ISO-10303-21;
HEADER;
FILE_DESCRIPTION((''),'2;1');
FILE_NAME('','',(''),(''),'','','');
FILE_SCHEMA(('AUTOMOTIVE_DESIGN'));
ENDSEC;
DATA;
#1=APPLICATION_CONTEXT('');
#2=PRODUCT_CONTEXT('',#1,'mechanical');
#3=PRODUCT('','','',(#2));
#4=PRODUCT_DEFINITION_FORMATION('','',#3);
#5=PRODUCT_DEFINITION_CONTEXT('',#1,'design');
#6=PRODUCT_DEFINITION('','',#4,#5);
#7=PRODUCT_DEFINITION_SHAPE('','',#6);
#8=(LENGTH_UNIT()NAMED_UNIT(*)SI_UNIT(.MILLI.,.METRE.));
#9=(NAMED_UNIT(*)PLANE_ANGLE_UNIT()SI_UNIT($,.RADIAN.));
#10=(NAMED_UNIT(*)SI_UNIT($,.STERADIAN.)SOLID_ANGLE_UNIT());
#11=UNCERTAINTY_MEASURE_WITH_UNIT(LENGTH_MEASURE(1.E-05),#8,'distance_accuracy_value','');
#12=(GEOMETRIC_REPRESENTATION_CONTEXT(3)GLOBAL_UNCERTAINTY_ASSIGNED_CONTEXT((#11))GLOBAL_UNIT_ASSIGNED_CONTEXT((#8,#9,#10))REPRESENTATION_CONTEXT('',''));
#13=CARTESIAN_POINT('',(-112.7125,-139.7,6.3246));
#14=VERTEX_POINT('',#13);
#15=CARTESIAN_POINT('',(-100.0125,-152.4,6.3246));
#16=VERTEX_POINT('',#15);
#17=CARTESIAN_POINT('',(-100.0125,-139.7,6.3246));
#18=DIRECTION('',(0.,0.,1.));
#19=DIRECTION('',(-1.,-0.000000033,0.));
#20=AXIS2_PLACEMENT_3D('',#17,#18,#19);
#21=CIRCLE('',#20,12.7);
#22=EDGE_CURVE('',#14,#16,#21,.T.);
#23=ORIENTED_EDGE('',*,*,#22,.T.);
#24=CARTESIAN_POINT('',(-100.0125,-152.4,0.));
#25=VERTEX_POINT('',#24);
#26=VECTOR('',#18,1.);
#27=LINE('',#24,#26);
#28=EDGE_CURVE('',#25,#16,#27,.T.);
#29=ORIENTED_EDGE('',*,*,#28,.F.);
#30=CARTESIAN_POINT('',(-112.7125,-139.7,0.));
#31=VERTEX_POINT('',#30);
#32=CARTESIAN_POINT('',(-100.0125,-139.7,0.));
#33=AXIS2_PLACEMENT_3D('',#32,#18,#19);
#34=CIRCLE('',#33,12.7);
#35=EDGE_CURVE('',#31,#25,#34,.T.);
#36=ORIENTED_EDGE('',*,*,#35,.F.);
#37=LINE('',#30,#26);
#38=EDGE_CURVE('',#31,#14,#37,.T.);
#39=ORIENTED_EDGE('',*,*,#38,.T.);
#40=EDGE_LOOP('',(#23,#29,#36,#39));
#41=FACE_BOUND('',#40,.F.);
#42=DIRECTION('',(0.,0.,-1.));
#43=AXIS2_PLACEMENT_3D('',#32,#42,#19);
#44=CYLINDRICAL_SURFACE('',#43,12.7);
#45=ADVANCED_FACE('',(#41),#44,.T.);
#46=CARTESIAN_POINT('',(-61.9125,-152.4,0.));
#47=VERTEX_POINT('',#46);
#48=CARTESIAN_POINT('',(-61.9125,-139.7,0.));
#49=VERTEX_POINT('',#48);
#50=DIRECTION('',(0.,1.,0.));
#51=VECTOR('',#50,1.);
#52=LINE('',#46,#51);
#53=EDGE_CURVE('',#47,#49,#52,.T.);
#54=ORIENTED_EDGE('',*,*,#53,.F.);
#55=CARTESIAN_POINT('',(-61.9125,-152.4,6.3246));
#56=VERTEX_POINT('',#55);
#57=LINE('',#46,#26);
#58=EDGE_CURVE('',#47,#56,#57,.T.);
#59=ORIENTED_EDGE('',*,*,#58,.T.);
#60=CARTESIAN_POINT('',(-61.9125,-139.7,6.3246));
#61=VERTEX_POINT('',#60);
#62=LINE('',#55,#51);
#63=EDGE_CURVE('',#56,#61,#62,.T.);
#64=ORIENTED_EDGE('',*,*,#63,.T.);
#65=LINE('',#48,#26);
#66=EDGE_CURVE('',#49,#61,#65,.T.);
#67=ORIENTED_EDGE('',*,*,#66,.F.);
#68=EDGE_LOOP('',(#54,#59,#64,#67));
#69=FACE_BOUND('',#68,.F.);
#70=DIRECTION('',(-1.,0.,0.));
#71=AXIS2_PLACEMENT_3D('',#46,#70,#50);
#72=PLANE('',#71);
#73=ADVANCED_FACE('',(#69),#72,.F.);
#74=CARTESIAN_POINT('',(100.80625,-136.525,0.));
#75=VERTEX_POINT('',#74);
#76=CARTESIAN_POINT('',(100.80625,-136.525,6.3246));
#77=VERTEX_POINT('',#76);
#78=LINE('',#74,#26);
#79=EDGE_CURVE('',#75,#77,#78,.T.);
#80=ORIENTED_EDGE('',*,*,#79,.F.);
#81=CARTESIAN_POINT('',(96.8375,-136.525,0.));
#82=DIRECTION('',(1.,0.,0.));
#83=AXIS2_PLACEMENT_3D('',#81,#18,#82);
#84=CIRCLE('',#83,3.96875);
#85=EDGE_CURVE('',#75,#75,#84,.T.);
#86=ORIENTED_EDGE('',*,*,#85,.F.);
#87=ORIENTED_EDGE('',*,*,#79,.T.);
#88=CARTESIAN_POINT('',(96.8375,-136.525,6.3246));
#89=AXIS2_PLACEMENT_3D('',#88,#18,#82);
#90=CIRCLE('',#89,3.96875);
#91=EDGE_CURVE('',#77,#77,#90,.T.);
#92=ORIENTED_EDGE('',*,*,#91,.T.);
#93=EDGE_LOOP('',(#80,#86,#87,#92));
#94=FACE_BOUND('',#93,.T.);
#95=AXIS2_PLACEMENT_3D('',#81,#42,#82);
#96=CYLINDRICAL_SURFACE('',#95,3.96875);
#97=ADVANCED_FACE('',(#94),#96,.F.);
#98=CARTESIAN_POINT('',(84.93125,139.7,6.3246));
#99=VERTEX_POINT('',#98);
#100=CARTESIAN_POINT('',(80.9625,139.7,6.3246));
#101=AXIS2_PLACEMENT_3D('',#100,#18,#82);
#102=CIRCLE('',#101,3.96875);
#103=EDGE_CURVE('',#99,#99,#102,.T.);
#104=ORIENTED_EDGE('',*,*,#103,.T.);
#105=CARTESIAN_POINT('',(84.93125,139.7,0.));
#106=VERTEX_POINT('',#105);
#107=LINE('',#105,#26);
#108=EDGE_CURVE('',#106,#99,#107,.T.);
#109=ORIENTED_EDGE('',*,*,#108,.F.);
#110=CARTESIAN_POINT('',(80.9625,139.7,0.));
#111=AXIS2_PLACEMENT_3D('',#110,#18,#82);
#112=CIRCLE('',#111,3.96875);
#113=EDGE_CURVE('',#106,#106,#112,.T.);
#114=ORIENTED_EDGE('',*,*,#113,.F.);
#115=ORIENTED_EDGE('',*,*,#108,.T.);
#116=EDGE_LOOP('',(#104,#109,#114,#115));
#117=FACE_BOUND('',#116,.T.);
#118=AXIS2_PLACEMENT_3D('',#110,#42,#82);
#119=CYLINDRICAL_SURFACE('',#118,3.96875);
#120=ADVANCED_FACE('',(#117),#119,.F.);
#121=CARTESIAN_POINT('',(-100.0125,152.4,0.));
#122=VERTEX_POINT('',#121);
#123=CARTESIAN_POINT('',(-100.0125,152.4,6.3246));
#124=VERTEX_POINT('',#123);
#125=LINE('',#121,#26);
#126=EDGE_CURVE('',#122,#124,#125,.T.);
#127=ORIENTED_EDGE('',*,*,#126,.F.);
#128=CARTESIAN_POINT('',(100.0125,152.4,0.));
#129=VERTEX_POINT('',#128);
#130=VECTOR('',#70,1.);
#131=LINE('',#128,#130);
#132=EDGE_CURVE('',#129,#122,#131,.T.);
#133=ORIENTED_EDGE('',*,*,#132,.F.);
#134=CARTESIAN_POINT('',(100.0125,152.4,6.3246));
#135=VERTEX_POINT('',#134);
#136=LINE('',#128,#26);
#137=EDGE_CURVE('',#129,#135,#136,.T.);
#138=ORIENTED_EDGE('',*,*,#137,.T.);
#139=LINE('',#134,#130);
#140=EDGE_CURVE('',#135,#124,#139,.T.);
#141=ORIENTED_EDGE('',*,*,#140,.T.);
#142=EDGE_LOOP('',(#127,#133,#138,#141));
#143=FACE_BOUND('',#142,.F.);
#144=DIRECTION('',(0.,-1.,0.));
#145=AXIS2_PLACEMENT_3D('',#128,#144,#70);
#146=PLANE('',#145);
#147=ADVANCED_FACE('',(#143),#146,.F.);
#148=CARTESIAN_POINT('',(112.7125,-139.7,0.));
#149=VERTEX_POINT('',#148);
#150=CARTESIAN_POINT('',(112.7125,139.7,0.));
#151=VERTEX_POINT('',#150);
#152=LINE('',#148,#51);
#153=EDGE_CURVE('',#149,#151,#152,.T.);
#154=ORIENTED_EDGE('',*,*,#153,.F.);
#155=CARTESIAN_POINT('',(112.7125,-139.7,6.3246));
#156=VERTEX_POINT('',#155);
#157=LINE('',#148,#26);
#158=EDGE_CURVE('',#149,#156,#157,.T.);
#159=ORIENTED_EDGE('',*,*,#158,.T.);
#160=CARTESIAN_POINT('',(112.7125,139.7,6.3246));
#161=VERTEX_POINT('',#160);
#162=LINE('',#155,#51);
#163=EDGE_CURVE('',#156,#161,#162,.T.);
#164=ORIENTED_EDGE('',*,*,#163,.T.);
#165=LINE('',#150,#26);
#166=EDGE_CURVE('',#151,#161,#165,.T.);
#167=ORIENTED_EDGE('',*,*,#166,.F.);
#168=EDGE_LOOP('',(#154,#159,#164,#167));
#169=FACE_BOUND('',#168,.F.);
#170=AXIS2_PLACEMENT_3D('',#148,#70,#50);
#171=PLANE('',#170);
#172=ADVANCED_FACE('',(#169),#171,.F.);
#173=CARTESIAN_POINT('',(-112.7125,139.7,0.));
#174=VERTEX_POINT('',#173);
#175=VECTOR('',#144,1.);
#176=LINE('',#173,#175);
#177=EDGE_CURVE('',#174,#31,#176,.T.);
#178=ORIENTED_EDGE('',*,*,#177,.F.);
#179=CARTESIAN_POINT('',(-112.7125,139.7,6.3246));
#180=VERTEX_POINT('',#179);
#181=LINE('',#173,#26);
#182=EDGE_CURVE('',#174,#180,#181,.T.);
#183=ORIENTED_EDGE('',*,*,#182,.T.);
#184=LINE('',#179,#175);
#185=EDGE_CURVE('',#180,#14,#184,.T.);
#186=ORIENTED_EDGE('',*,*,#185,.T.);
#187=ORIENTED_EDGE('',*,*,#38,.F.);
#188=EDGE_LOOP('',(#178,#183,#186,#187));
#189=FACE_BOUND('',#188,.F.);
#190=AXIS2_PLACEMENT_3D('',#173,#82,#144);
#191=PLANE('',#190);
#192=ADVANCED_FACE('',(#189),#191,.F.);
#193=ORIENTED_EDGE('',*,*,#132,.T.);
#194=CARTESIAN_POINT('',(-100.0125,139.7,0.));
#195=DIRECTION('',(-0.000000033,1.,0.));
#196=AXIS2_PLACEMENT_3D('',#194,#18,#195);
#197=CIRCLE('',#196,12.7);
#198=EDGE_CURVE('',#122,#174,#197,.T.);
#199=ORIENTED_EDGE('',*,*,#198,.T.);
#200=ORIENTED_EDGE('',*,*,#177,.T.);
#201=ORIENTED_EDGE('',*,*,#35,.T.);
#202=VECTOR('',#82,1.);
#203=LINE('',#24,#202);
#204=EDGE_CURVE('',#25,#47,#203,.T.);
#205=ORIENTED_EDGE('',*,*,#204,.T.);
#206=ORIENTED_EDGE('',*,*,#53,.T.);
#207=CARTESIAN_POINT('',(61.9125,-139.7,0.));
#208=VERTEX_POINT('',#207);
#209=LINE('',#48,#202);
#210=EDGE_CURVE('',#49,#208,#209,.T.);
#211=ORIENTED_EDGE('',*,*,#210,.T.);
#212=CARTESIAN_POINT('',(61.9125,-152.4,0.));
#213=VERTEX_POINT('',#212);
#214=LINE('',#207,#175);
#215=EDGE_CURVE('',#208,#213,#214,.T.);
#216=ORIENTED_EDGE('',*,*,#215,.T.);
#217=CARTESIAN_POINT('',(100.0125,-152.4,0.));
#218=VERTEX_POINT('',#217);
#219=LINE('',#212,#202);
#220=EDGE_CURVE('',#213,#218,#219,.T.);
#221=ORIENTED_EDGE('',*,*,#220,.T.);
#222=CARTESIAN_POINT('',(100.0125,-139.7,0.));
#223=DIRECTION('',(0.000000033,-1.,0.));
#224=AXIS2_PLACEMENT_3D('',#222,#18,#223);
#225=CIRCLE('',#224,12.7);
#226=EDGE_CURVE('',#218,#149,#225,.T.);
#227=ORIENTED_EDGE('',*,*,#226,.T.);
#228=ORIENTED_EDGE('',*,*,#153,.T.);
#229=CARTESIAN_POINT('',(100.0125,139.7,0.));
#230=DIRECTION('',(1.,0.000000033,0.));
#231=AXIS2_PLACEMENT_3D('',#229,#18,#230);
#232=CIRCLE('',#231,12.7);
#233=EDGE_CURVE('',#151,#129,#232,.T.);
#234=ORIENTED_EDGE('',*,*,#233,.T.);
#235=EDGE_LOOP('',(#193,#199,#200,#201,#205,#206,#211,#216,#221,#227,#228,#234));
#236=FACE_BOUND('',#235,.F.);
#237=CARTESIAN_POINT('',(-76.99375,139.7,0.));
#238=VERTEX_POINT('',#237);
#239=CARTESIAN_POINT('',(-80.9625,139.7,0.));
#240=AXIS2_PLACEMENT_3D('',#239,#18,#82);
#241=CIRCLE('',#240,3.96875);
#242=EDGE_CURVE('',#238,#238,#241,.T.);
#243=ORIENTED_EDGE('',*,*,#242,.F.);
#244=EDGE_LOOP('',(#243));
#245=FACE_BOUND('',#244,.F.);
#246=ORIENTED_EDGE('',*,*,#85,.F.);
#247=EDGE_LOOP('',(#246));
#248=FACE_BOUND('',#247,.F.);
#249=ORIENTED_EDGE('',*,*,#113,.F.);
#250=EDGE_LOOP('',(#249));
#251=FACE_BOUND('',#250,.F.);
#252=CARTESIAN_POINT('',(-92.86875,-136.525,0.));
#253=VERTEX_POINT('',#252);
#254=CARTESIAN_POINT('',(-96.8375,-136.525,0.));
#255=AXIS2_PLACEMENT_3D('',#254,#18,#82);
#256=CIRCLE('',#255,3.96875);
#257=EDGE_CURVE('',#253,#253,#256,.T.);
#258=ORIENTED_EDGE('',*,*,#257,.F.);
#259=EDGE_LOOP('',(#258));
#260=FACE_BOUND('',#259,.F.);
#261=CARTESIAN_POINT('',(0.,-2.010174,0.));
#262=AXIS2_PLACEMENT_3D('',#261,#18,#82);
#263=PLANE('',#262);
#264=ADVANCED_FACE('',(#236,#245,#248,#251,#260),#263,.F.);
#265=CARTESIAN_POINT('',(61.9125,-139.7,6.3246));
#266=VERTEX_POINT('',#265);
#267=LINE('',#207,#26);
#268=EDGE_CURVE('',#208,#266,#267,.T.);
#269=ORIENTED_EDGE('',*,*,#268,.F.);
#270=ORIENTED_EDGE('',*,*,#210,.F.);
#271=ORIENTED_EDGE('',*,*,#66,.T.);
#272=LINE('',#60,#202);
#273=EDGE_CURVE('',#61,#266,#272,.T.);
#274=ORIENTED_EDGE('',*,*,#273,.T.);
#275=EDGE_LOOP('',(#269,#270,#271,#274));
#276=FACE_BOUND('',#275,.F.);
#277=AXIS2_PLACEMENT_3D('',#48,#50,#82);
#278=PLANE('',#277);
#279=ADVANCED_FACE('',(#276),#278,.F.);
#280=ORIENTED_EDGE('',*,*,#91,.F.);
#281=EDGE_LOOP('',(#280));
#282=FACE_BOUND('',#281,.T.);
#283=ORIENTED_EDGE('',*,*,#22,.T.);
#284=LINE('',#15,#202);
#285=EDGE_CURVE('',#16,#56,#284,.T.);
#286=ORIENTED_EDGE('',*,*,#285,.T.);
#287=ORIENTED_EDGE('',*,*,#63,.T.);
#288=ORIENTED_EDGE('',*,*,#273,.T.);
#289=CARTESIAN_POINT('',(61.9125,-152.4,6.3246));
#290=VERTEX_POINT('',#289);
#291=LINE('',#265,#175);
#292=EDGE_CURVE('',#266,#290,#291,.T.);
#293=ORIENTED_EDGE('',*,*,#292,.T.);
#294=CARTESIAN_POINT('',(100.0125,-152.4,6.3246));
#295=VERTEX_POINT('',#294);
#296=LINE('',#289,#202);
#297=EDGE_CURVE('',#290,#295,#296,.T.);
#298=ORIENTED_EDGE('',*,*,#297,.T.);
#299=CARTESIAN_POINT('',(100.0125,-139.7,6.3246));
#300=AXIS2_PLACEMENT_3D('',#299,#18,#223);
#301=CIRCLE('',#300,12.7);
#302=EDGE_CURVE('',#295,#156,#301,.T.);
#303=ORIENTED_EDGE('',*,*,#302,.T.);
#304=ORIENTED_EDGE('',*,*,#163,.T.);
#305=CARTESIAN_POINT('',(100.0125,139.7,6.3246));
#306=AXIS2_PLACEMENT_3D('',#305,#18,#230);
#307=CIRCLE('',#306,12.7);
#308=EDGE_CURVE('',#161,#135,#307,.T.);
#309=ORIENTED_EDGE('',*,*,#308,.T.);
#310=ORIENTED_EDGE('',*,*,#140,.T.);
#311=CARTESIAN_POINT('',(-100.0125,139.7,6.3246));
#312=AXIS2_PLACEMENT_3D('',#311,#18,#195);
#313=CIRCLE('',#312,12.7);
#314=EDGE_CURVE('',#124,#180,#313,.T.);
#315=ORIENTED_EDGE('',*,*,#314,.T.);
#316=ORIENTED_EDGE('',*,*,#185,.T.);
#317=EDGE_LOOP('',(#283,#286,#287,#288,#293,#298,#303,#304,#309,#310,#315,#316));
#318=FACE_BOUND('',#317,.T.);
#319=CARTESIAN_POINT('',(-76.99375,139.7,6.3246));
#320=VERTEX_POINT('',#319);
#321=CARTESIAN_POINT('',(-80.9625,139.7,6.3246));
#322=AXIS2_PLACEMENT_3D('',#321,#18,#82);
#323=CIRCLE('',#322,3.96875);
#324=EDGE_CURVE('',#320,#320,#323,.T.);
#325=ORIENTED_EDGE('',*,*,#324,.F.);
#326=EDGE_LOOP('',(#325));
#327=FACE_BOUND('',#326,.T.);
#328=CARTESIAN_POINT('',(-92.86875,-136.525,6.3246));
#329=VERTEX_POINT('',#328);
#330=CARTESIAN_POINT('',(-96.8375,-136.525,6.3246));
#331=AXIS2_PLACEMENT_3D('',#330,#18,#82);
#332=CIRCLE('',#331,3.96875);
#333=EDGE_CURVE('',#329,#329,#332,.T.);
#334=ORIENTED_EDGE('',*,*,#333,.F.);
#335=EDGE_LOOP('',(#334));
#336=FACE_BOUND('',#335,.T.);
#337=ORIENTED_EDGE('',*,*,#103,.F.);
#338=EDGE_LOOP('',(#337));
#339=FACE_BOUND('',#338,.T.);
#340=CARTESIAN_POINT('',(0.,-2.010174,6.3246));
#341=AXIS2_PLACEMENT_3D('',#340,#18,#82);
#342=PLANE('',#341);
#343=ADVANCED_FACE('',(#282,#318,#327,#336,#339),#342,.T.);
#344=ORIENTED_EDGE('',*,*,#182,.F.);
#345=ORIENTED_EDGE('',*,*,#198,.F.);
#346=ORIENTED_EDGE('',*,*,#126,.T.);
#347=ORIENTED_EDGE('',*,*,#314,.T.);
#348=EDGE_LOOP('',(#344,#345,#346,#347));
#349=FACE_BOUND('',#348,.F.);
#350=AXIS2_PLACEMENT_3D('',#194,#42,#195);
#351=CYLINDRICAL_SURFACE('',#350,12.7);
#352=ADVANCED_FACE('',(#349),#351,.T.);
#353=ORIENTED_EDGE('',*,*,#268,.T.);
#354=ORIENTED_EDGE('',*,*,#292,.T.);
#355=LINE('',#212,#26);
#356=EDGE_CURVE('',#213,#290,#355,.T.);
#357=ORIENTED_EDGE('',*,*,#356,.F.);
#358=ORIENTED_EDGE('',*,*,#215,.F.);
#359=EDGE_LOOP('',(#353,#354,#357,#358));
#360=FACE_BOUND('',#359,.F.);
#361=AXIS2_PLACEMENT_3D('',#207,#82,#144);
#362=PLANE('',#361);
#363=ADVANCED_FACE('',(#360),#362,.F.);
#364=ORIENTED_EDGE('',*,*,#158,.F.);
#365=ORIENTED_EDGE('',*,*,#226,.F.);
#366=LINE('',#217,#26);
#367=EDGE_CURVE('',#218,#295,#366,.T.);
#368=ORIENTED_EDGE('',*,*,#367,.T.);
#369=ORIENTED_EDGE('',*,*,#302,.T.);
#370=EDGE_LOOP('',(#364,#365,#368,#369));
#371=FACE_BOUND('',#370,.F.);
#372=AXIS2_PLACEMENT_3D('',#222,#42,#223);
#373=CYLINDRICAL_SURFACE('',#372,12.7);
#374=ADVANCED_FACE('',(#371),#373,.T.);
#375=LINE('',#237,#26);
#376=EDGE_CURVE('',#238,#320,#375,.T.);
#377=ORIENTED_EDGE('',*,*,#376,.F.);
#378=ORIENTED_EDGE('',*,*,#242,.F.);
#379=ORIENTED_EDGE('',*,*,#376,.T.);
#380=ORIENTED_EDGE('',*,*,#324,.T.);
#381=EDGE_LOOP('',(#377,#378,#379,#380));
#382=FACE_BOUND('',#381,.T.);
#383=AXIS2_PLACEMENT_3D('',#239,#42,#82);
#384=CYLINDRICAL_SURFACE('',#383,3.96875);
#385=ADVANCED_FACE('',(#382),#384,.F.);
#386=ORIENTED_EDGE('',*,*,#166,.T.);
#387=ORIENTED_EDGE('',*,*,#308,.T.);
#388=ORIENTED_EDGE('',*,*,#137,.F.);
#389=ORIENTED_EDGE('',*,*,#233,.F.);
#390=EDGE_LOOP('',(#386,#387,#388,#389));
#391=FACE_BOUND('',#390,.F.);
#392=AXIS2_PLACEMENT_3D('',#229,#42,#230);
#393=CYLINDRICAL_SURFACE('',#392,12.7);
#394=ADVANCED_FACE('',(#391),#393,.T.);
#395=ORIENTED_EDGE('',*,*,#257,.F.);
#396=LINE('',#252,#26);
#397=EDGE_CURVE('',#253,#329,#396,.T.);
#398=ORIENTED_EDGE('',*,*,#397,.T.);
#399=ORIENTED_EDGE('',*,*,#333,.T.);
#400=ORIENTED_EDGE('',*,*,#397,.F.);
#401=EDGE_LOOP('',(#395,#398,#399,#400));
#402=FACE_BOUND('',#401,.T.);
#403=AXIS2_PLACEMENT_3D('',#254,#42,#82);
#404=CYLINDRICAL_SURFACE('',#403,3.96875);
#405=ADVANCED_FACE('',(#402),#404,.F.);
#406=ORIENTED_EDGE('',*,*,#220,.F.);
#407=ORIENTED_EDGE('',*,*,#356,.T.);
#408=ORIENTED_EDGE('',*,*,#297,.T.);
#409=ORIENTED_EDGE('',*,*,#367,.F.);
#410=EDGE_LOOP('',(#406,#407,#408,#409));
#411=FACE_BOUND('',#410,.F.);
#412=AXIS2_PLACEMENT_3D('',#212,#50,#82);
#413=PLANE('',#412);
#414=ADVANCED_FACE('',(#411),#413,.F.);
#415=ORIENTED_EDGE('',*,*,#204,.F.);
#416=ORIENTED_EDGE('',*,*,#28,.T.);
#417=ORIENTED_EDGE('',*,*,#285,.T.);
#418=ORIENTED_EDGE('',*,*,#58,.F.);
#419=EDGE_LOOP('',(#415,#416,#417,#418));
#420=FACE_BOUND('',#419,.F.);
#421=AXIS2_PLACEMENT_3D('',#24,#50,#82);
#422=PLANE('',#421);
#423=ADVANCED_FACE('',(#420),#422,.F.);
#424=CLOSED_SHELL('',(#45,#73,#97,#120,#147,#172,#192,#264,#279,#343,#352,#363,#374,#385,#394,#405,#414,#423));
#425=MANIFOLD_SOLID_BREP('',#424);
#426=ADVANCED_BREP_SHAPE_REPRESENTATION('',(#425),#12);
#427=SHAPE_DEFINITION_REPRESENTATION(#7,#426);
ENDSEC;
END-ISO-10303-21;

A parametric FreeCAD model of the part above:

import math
import FreeCAD as App
import Part
import Sketcher
Q = App.Units.Quantity

doc = App.newDocument("Part")
body = doc.addObject("PartDesign::Body", "Body")

# Sketch on XY plane
sketch1 = body.newObject("Sketcher::SketchObject", "Sketch")
sketch1.AttachmentSupport = (doc.getObject("XY_Plane"), [""])
sketch1.MapMode = "FlatFace"
sketch1.addGeometry([
    Part.LineSegment(App.Vector(61.9125, -152.4, 0), App.Vector(100.0125, -152.4, 0)),  # 0
    Part.ArcOfCircle(Part.Circle(App.Vector(100.0125, -139.7, 0), App.Vector(0, 0, 1), 12.7), math.radians(-89.999998), math.radians(-0.000002)),  # 1
    Part.LineSegment(App.Vector(112.7125, -139.7, 0), App.Vector(112.7125, 139.7, 0)),  # 2
    Part.ArcOfCircle(Part.Circle(App.Vector(100.0125, 139.7, 0), App.Vector(0, 0, 1), 12.7), math.radians(0.000002), math.radians(89.999998)),  # 3
    Part.LineSegment(App.Vector(100.0125, 152.4, 0), App.Vector(-100.0125, 152.4, 0)),  # 4
    Part.ArcOfCircle(Part.Circle(App.Vector(-100.0125, 139.7, 0), App.Vector(0, 0, 1), 12.7), math.radians(90.000002), math.radians(179.999998)),  # 5
    Part.LineSegment(App.Vector(-112.7125, 139.7, 0), App.Vector(-112.7125, -139.7, 0)),  # 6
    Part.ArcOfCircle(Part.Circle(App.Vector(-100.0125, -139.7, 0), App.Vector(0, 0, 1), 12.7), math.radians(-179.999998), math.radians(-90.000002)),  # 7
    Part.LineSegment(App.Vector(-100.0125, -152.4, 0), App.Vector(-61.9125, -152.4, 0)),  # 8
    Part.LineSegment(App.Vector(-61.9125, -152.4, 0), App.Vector(-61.9125, -139.7, 0)),  # 9
    Part.LineSegment(App.Vector(-61.9125, -139.7, 0), App.Vector(61.9125, -139.7, 0)),  # 10
    Part.LineSegment(App.Vector(61.9125, -139.7, 0), App.Vector(61.9125, -152.4, 0)),  # 11
    Part.Circle(App.Vector(-96.8375, -136.525, 0), App.Vector(0, 0, 1), 3.96875),  # 12
    Part.Circle(App.Vector(96.8375, -136.525, 0), App.Vector(0, 0, 1), 3.96875),  # 13
    Part.Circle(App.Vector(-80.9625, 139.7, 0), App.Vector(0, 0, 1), 3.96875),  # 14
    Part.Circle(App.Vector(80.9625, 139.7, 0), App.Vector(0, 0, 1), 3.96875),  # 15
], False)
sketch1.addConstraint([
    Sketcher.Constraint("Tangent", 0, 2, 1, 1),
    Sketcher.Constraint("Tangent", 1, 2, 2, 1),
    Sketcher.Constraint("Tangent", 2, 2, 3, 1),
    Sketcher.Constraint("Tangent", 3, 2, 4, 1),
    Sketcher.Constraint("Tangent", 4, 2, 5, 1),
    Sketcher.Constraint("Tangent", 5, 2, 6, 1),
    Sketcher.Constraint("Tangent", 6, 2, 7, 1),
    Sketcher.Constraint("Tangent", 7, 2, 8, 1),
    Sketcher.Constraint("Coincident", 8, 2, 9, 1),
    Sketcher.Constraint("Coincident", 9, 2, 10, 1),
    Sketcher.Constraint("Coincident", 10, 2, 11, 1),
    Sketcher.Constraint("Coincident", 11, 2, 0, 1),
    Sketcher.Constraint("Horizontal", 0),
    Sketcher.Constraint("Vertical", 2),
    Sketcher.Constraint("Horizontal", 4),
    Sketcher.Constraint("Vertical", 6),
    Sketcher.Constraint("Horizontal", 8),
    Sketcher.Constraint("Vertical", 9),
    Sketcher.Constraint("Horizontal", 10),
    Sketcher.Constraint("Vertical", 11),
    Sketcher.Constraint("Equal", 1, 3),
    Sketcher.Constraint("Equal", 3, 5),
    Sketcher.Constraint("Equal", 5, 7),
    Sketcher.Constraint("Equal", 12, 13),
    Sketcher.Constraint("Equal", 13, 14),
    Sketcher.Constraint("Equal", 14, 15),
    Sketcher.Constraint("Symmetric", 1, 3, 5, 3, -1, 1),
    Sketcher.Constraint("Symmetric", 12, 3, 13, 3, -2),
    Sketcher.Constraint("Symmetric", 14, 3, 15, 3, -2),
    Sketcher.Constraint("Symmetric", 8, 2, 11, 2, -2),
    Sketcher.Constraint("Horizontal", 5, 3, 14, 3),
    Sketcher.Constraint("Horizontal", 6, 2, 9, 2),
    Sketcher.Constraint("Radius", 1, Q("0.5 in")),
    Sketcher.Constraint("DistanceY", 2, 1, 2, 2, Q("11 in")),
    Sketcher.Constraint("Diameter", 12, Q("0.3125 in")),
    Sketcher.Constraint("DistanceX", 0, 1, 0, 2, Q("1.5 in")),
    Sketcher.Constraint("DistanceX", 14, 3, 13, 3, Q("7 in")),
    Sketcher.Constraint("DistanceX", 4, 2, 4, 1, Q("7.875 in")),
    Sketcher.Constraint("DistanceX", 12, 3, 1, 3, Q("7.75 in")),
    Sketcher.Constraint("DistanceY", 12, 3, -1, 1, Q("5.375 in")),
])
pad1 = body.newObject("PartDesign::Pad", "Pad")
pad1.Profile = sketch1
pad1.Length = Q("0.249 in")

doc.recompute()
